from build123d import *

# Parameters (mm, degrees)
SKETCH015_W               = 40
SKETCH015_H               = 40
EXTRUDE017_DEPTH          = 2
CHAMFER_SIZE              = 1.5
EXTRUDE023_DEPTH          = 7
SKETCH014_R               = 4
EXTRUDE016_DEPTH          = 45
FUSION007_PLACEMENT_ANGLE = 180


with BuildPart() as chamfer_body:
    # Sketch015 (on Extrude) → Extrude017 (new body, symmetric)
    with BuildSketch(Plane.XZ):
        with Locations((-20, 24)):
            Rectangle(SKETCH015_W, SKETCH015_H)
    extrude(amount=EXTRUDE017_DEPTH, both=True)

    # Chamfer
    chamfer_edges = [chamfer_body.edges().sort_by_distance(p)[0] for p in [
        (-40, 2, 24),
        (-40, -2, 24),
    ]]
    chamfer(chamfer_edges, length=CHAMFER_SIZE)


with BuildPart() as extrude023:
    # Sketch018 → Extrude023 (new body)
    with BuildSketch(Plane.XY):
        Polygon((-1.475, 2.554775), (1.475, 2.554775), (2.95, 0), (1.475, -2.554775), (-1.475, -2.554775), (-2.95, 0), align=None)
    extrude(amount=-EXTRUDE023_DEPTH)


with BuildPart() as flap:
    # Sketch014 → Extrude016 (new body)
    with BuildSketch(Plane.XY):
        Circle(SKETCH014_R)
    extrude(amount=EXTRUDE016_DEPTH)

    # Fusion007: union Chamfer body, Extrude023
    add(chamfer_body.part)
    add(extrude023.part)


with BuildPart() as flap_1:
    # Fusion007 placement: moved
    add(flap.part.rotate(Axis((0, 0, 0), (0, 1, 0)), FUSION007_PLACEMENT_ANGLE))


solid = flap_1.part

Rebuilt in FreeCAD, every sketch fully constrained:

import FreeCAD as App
import Part
import Sketcher

V = App.Vector
Q = App.Units.Quantity


def edges_at(feature, points):
    """Names of the edges that pass closest to the given points."""
    edges = feature.Shape.Edges
    near = lambda p: min(range(len(edges)), key=lambda i: edges[i].distToShape(Part.Vertex(*p))[0])
    return sorted({f"Edge{near(p) + 1}" for p in points})


def add_polygon(sketch, points):
    """Adds a closed chain of lines whose ends are joined by coincident constraints."""
    first, n = sketch.GeometryCount, len(points)
    for a, b in zip(points, points[1:] + points[:1]):
        sketch.addGeometry(Part.LineSegment(App.Vector(*a, 0), App.Vector(*b, 0)), False)
    for i in range(n):
        sketch.addConstraint(Sketcher.Constraint("Coincident", first + i, 2, first + (i + 1) % n, 1))

doc = App.newDocument("Part")
body = doc.addObject("PartDesign::Body", "Body")

sketch1 = doc.addObject("Sketcher::SketchObject", "Sketch")
body.addObject(sketch1)
sketch1.AttachmentSupport = (doc.XZ_Plane, [""])
sketch1.MapMode = "FlatFace"
add_polygon(sketch1, [(-40, 44), (-40, 4), (0, 4), (0, 44)])
sketch1.addConstraint(Sketcher.Constraint("Vertical", 0))
sketch1.addConstraint(Sketcher.Constraint("Horizontal", 1))
sketch1.addConstraint(Sketcher.Constraint("Vertical", 2))
sketch1.addConstraint(Sketcher.Constraint("Horizontal", 3))
sketch1.addConstraint(Sketcher.Constraint("PointOnObject", 1, 2, -2))
sketch1.addConstraint(Sketcher.Constraint("Equal", 3, 0))
sketch1.addConstraint(Sketcher.Constraint("DistanceX", 1, 1, 1, 2, Q("40 mm")))
sketch1.addConstraint(Sketcher.Constraint("DistanceY", -1, 1, 0, 2, Q("4 mm")))
pad1 = doc.addObject("PartDesign::Pad", "Pad")
body.addObject(pad1)
pad1.Profile = sketch1
pad1.Length = 4
pad1.Midplane = True
doc.recompute()

chamfer = doc.addObject("PartDesign::Chamfer", "Chamfer")
body.addObject(chamfer)
chamfer.Base = (pad1, edges_at(pad1, [(-40, 2, 24), (-40, -2, 24)]))
chamfer.Size = 1.5
body2 = doc.addObject("PartDesign::Body", "Body001")

sketch2 = doc.addObject("Sketcher::SketchObject", "Sketch001")
body2.addObject(sketch2)
sketch2.AttachmentSupport = (doc.getObject("XY_Plane001"), [""])
sketch2.MapMode = "FlatFace"
add_polygon(sketch2, [(1.5, 2.6), (-1.5, 2.6), (-3, 0), (-1.5, -2.6), (1.5, -2.6), (3, 0)])
sketch2.addConstraint(Sketcher.Constraint("Horizontal", 0))
sketch2.addConstraint(Sketcher.Constraint("Horizontal", 3))
sketch2.addConstraint(Sketcher.Constraint("Symmetric", 0, 2, 3, 2, -1, 1))
sketch2.addConstraint(Sketcher.Constraint("Symmetric", 1, 2, 4, 2, -1, 1))
sketch2.addConstraint(Sketcher.Constraint("PointOnObject", 1, 2, -1))
sketch2.addConstraint(Sketcher.Constraint("Parallel", 2, 5))
sketch2.addConstraint(Sketcher.Constraint("Vertical", 0, 2, 2, 2))
sketch2.addConstraint(Sketcher.Constraint("Angle", 1, Q("-119.999999 deg")))
sketch2.addConstraint(Sketcher.Constraint("DistanceX", 0, 2, 0, 1, Q("2.95 mm")))
sketch2.addConstraint(Sketcher.Constraint("DistanceX", 1, 2, 4, 2, Q("5.9 mm")))
pad2 = doc.addObject("PartDesign::Pad", "Pad001")
body2.addObject(pad2)
pad2.Profile = sketch2
pad2.Length = 7
pad2.Reversed = True
body3 = doc.addObject("PartDesign::Body", "Body002")

sketch3 = doc.addObject("Sketcher::SketchObject", "Sketch002")
body3.addObject(sketch3)
sketch3.AttachmentSupport = (doc.getObject("XY_Plane002"), [""])
sketch3.MapMode = "FlatFace"
sketch3.addGeometry(Part.Circle(V(0, 0, 0), V(0, 0, 1), 4), False)
sketch3.addConstraint(Sketcher.Constraint("Coincident", 0, 3, -1, 1))
sketch3.addConstraint(Sketcher.Constraint("Diameter", 0, Q("8 mm")))
pad3 = doc.addObject("PartDesign::Pad", "Pad002")
body3.addObject(pad3)
pad3.Profile = sketch3
pad3.Length = 45
doc.recompute()

boolean = doc.addObject("PartDesign::Boolean", "Boolean")
body3.addObject(boolean)
boolean.Type = "Fuse"
boolean.addObjects([body])
doc.recompute()

boolean2 = doc.addObject("PartDesign::Boolean", "Boolean001")
body3.addObject(boolean2)
boolean2.Type = "Fuse"
boolean2.addObjects([body2])
body4 = doc.addObject("PartDesign::Body", "Body003")
doc.recompute()

body3.Placement = App.Placement(V(0, 0, 0), App.Rotation(V(0, 1, 0), 180))
boolean3 = doc.addObject("PartDesign::Boolean", "Boolean002")
body4.addObject(boolean3)
boolean3.Type = "Fuse"
boolean3.addObjects([body3])

doc.recompute()
